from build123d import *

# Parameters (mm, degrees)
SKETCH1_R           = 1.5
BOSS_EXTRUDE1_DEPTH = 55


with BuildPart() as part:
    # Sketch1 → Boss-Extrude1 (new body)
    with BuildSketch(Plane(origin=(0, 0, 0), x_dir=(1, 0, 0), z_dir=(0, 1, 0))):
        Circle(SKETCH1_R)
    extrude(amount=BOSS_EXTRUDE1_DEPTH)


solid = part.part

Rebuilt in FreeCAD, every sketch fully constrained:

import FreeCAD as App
import Part
import Sketcher

doc = App.newDocument("Part")
body = doc.addObject("PartDesign::Body", "Body")

sketch1 = body.newObject("Sketcher::SketchObject", "Sketch")
sketch1.AttachmentSupport = (doc.getObject("XZ_Plane"), [""])
sketch1.MapMode = "FlatFace"
sketch1.addGeometry(Part.Circle(App.Vector(0, 0, 0), App.Vector(0, 0, 1), 1.5), False)
sketch1.addConstraint([
    Sketcher.Constraint("Coincident", 0, 3, -1, 1),
    Sketcher.Constraint("Diameter", 0, 3.0),
])
pad1 = body.newObject("PartDesign::Pad", "Pad")
pad1.Profile = sketch1
pad1.Length = 55
pad1.Reversed = True

doc.recompute()
